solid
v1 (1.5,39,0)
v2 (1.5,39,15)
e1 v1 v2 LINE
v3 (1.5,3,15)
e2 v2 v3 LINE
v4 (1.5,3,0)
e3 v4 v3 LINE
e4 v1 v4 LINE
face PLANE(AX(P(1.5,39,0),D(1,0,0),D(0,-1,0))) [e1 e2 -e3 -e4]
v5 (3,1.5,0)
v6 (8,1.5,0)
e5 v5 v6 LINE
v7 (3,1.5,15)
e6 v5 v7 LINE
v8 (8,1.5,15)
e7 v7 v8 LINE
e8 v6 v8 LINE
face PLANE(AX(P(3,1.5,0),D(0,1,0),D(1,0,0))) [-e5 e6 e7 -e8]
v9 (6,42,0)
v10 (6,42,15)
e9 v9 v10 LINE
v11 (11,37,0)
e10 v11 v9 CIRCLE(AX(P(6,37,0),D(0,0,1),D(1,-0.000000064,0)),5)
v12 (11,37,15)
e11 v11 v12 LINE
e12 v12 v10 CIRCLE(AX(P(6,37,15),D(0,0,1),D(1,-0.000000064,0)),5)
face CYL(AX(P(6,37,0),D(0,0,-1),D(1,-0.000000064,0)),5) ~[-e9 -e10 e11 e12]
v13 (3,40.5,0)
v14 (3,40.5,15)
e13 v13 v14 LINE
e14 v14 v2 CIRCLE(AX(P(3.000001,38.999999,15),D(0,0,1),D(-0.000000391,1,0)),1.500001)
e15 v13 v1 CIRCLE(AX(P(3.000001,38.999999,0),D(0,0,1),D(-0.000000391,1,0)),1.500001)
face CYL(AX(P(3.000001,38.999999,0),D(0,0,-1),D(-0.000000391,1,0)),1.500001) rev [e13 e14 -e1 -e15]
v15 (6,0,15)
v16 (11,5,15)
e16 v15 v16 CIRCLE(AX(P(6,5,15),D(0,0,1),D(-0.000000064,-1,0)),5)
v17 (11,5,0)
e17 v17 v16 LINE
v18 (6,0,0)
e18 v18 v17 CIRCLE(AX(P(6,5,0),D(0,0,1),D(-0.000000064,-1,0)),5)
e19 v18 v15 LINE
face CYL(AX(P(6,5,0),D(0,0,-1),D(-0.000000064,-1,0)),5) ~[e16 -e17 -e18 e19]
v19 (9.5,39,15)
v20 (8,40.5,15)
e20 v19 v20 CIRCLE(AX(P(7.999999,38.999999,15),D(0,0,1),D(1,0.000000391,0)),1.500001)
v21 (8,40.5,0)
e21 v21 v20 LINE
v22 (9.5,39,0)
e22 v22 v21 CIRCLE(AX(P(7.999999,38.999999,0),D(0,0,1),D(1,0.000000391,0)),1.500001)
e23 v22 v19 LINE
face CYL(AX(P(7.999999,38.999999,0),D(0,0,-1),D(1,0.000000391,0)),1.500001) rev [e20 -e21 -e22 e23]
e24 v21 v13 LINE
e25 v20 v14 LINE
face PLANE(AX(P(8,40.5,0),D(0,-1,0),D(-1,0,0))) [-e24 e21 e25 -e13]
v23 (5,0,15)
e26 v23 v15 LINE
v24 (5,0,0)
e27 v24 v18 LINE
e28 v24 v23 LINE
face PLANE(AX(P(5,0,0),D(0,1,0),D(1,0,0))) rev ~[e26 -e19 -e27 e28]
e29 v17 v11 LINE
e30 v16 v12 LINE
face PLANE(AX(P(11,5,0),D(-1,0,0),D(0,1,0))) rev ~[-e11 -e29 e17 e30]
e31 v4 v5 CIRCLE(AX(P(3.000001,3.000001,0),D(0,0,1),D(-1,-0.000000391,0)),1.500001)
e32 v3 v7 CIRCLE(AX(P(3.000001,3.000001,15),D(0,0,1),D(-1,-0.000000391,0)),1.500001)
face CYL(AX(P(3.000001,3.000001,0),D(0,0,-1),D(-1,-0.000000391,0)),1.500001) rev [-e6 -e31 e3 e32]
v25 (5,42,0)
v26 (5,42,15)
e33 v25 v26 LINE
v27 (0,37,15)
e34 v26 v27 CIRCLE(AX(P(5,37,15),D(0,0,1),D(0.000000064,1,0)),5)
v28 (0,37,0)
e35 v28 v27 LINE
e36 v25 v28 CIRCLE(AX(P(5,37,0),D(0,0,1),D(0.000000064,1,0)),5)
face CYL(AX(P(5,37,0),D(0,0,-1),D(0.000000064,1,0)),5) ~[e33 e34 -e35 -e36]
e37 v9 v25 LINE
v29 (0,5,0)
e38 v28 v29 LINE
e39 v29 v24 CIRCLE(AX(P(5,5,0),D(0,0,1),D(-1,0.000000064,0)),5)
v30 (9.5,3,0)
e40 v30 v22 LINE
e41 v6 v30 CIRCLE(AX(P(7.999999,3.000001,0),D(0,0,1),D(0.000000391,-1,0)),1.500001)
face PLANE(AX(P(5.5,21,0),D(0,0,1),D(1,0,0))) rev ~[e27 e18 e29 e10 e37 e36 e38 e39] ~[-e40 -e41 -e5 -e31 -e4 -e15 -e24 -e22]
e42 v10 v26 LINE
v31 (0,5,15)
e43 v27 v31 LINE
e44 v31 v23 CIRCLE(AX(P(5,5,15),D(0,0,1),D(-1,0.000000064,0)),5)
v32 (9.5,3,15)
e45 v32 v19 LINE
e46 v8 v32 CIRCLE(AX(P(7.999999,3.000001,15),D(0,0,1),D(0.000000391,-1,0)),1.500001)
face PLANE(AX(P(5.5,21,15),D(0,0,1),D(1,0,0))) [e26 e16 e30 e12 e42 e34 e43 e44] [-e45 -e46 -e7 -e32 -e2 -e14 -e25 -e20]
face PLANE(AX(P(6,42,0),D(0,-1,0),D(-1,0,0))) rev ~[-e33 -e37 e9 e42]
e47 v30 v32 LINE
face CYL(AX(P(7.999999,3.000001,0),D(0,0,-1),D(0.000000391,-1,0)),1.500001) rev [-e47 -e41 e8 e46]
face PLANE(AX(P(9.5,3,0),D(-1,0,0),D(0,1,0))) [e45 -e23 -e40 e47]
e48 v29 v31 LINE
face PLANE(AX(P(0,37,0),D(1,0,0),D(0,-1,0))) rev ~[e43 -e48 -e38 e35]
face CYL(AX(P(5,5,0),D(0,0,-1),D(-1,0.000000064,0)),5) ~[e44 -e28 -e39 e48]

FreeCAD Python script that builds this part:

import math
import FreeCAD as App
import Part
import Sketcher

doc = App.newDocument("Part")
params = doc.addObject("Spreadsheet::Sheet", "Params")
for row, (alias, value) in enumerate([
    ("sketch1_radius", "5 mm"),
    ("sketch1_radius2", "1.500001 mm"),
    ("sketch1_width", "1 mm"),
    ("sketch1_width2", "5 mm"),
    ("sketch1_height", "32 mm"),
    ("pad1_length", "15 mm"),
], start=1):
    params.set(f"A{row}", alias)
    params.set(f"B{row}", "=" + value)
    params.setAlias(f"B{row}", alias)

body = doc.addObject("PartDesign::Body", "Body")

sketch1 = doc.addObject("Sketcher::SketchObject", "Sketch")
body.addObject(sketch1)
sketch1.AttachmentSupport = (doc.XY_Plane, [""])
sketch1.MapMode = "FlatFace"
sketch1.addGeometry(Part.LineSegment(App.Vector(5, 0, 0), App.Vector(6, 0, 0)), False)
sketch1.addGeometry(Part.ArcOfCircle(Part.Circle(App.Vector(6, 5, 0), App.Vector(0, 0, 1), 5), math.radians(-90), math.radians(0)), False)
sketch1.addGeometry(Part.LineSegment(App.Vector(11, 5, 0), App.Vector(11, 37, 0)), False)
sketch1.addGeometry(Part.ArcOfCircle(Part.Circle(App.Vector(6, 37, 0), App.Vector(0, 0, 1), 5), math.radians(0), math.radians(90)), False)
sketch1.addGeometry(Part.LineSegment(App.Vector(6, 42, 0), App.Vector(5, 42, 0)), False)
sketch1.addGeometry(Part.ArcOfCircle(Part.Circle(App.Vector(5, 37, 0), App.Vector(0, 0, 1), 5), math.radians(90), math.radians(180)), False)
sketch1.addGeometry(Part.LineSegment(App.Vector(0, 37, 0), App.Vector(0, 5, 0)), False)
sketch1.addGeometry(Part.ArcOfCircle(Part.Circle(App.Vector(5, 5, 0), App.Vector(0, 0, 1), 5), math.radians(180), math.radians(270)), False)
sketch1.addGeometry(Part.LineSegment(App.Vector(8, 1.5, 0), App.Vector(3, 1.5, 0)), False)
sketch1.addGeometry(Part.ArcOfCircle(Part.Circle(App.Vector(3, 3, 0), App.Vector(0, 0, 1), 1.5), math.radians(-180), math.radians(-90)), False)
sketch1.addGeometry(Part.LineSegment(App.Vector(1.5, 3, 0), App.Vector(1.5, 39, 0)), False)
sketch1.addGeometry(Part.ArcOfCircle(Part.Circle(App.Vector(3, 39, 0), App.Vector(0, 0, 1), 1.5), math.radians(90), math.radians(180)), False)
sketch1.addGeometry(Part.LineSegment(App.Vector(3, 40.5, 0), App.Vector(8, 40.5, 0)), False)
sketch1.addGeometry(Part.ArcOfCircle(Part.Circle(App.Vector(8, 39, 0), App.Vector(0, 0, 1), 1.5), math.radians(0), math.radians(90)), False)
sketch1.addGeometry(Part.LineSegment(App.Vector(9.5, 39, 0), App.Vector(9.5, 3, 0)), False)
sketch1.addGeometry(Part.ArcOfCircle(Part.Circle(App.Vector(8, 3, 0), App.Vector(0, 0, 1), 1.5), math.radians(-90), math.radians(0)), False)
sketch1.addConstraint(Sketcher.Constraint("Tangent", 0, 2, 1, 1))
sketch1.addConstraint(Sketcher.Constraint("Tangent", 1, 2, 2, 1))
sketch1.addConstraint(Sketcher.Constraint("Tangent", 2, 2, 3, 1))
sketch1.addConstraint(Sketcher.Constraint("Tangent", 3, 2, 4, 1))
sketch1.addConstraint(Sketcher.Constraint("Tangent", 4, 2, 5, 1))
sketch1.addConstraint(Sketcher.Constraint("Tangent", 5, 2, 6, 1))
sketch1.addConstraint(Sketcher.Constraint("Tangent", 6, 2, 7, 1))
sketch1.addConstraint(Sketcher.Constraint("Tangent", 7, 2, 0, 1))
sketch1.addConstraint(Sketcher.Constraint("Tangent", 8, 2, 9, 2))
sketch1.addConstraint(Sketcher.Constraint("Tangent", 9, 1, 10, 1))
sketch1.addConstraint(Sketcher.Constraint("Tangent", 10, 2, 11, 2))
sketch1.addConstraint(Sketcher.Constraint("Tangent", 11, 1, 12, 1))
sketch1.addConstraint(Sketcher.Constraint("Tangent", 12, 2, 13, 2))
sketch1.addConstraint(Sketcher.Constraint("Tangent", 13, 1, 14, 1))
sketch1.addConstraint(Sketcher.Constraint("Tangent", 14, 2, 15, 2))
sketch1.addConstraint(Sketcher.Constraint("Tangent", 15, 1, 8, 1))
sketch1.addConstraint(Sketcher.Constraint("Horizontal", 0))
sketch1.addConstraint(Sketcher.Constraint("Vertical", 2))
sketch1.addConstraint(Sketcher.Constraint("Horizontal", 4))
sketch1.addConstraint(Sketcher.Constraint("Vertical", 6))
sketch1.addConstraint(Sketcher.Constraint("Horizontal", 8))
sketch1.addConstraint(Sketcher.Constraint("Vertical", 10))
sketch1.addConstraint(Sketcher.Constraint("Horizontal", 12))
sketch1.addConstraint(Sketcher.Constraint("Vertical", 14))
sketch1.addConstraint(Sketcher.Constraint("Equal", 1, 3))
sketch1.addConstraint(Sketcher.Constraint("Equal", 3, 5))
sketch1.addConstraint(Sketcher.Constraint("Equal", 5, 7))
sketch1.addConstraint(Sketcher.Constraint("Equal", 9, 11))
sketch1.addConstraint(Sketcher.Constraint("Equal", 11, 13))
sketch1.addConstraint(Sketcher.Constraint("Equal", 13, 15))
sketch1.addConstraint(Sketcher.Constraint("PointOnObject", 0, 2, -1))
sketch1.addConstraint(Sketcher.Constraint("PointOnObject", 5, 2, -2))
sketch1.addConstraint(Sketcher.Constraint("Radius", 1, 5.0))
sketch1.addConstraint(Sketcher.Constraint("Radius", 9, 1.500001))
sketch1.addConstraint(Sketcher.Constraint("DistanceX", 0, 1, 0, 2, 1.0))
sketch1.addConstraint(Sketcher.Constraint("DistanceX", 8, 2, 8, 1, 5.0))
sketch1.addConstraint(Sketcher.Constraint("DistanceY", 2, 1, 2, 2, 32.0))
sketch1.addConstraint(Sketcher.Constraint("DistanceY", 10, 1, 10, 2, 36.0))
sketch1.addConstraint(Sketcher.Constraint("DistanceX", -1, 1, 9, 3, 3.000001))
sketch1.addConstraint(Sketcher.Constraint("DistanceY", -1, 1, 9, 3, 3.000001))
sketch1.setExpression("Constraints[32]", "Params.sketch1_radius")
sketch1.setExpression("Constraints[33]", "Params.sketch1_radius2")
sketch1.setExpression("Constraints[34]", "Params.sketch1_width")
sketch1.setExpression("Constraints[35]", "Params.sketch1_width2")
sketch1.setExpression("Constraints[36]", "Params.sketch1_height")
pad1 = doc.addObject("PartDesign::Pad", "Pad")
body.addObject(pad1)
pad1.Profile = sketch1
pad1.setExpression("Length", "Params.pad1_length")

doc.recompute()
